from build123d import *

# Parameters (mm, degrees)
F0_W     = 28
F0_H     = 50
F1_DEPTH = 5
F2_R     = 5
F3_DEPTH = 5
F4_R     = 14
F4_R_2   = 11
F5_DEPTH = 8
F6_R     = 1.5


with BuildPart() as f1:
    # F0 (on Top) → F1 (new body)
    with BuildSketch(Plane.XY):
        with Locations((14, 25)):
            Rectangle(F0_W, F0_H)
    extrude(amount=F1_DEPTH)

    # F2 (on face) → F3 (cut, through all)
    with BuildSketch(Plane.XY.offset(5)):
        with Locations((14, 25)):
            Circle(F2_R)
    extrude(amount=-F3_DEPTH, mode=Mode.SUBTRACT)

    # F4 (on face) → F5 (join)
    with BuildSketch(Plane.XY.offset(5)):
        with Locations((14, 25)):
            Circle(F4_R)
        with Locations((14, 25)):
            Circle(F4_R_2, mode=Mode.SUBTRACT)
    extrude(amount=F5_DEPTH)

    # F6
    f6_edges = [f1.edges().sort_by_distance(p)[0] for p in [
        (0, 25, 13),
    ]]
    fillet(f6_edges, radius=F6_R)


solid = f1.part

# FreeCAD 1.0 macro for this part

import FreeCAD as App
import Part
import Sketcher

V = App.Vector
Q = App.Units.Quantity


def edges_at(feature, points):
    """Names of the edges that pass closest to the given points."""
    edges = feature.Shape.Edges
    near = lambda p: min(range(len(edges)), key=lambda i: edges[i].distToShape(Part.Vertex(*p))[0])
    return sorted({f"Edge{near(p) + 1}" for p in points})


def add_polygon(sketch, points):
    """Adds a closed chain of lines whose ends are joined by coincident constraints."""
    first, n = sketch.GeometryCount, len(points)
    for a, b in zip(points, points[1:] + points[:1]):
        sketch.addGeometry(Part.LineSegment(App.Vector(*a, 0), App.Vector(*b, 0)), False)
    for i in range(n):
        sketch.addConstraint(Sketcher.Constraint("Coincident", first + i, 2, first + (i + 1) % n, 1))

doc = App.newDocument("Part")
body = doc.addObject("PartDesign::Body", "Body")

# Sketch on XY plane
sketch1 = body.newObject("Sketcher::SketchObject", "Sketch")
sketch1.AttachmentSupport = (doc.getObject("XY_Plane"), [""])
sketch1.MapMode = "FlatFace"
add_polygon(sketch1, [(0, 50), (0, 0), (28, 0), (28, 50)])  # lines 0-3
sketch1.addConstraint(Sketcher.Constraint("Vertical", 0))
sketch1.addConstraint(Sketcher.Constraint("Horizontal", 1))
sketch1.addConstraint(Sketcher.Constraint("Vertical", 2))
sketch1.addConstraint(Sketcher.Constraint("Horizontal", 3))
sketch1.addConstraint(Sketcher.Constraint("Coincident", 0, 2, -1, 1))
sketch1.addConstraint(Sketcher.Constraint("DistanceX", 1, 1, 1, 2, Q("28 mm")))
sketch1.addConstraint(Sketcher.Constraint("DistanceY", 0, 2, 0, 1, Q("50 mm")))
pad1 = body.newObject("PartDesign::Pad", "Pad")
pad1.Profile = sketch1
pad1.Length = 5

# Sketch on XY plane
sketch2 = body.newObject("Sketcher::SketchObject", "Sketch001")
sketch2.AttachmentSupport = (doc.getObject("XY_Plane"), [""])
sketch2.MapMode = "FlatFace"
sketch2.AttachmentOffset = App.Placement(V(0, 0, 5), App.Rotation())
sketch2.addGeometry(Part.Circle(V(14, 25, 0), V(0, 0, 1), 5), False)
sketch2.addConstraint(Sketcher.Constraint("Diameter", 0, Q("10 mm")))
sketch2.addConstraint(Sketcher.Constraint("DistanceX", -1, 1, 0, 3, Q("14 mm")))
sketch2.addConstraint(Sketcher.Constraint("DistanceY", -1, 1, 0, 3, Q("25 mm")))
pocket1 = body.newObject("PartDesign::Pocket", "Pocket")
pocket1.Profile = sketch2
pocket1.Type = "ThroughAll"

# Sketch on XY plane
sketch3 = body.newObject("Sketcher::SketchObject", "Sketch002")
sketch3.AttachmentSupport = (doc.getObject("XY_Plane"), [""])
sketch3.MapMode = "FlatFace"
sketch3.AttachmentOffset = App.Placement(V(0, 0, 5), App.Rotation())
sketch3.addGeometry(Part.Circle(V(14, 25, 0), V(0, 0, 1), 14), False)
sketch3.addGeometry(Part.Circle(V(14, 25, 0), V(0, 0, 1), 11), False)
sketch3.addConstraint(Sketcher.Constraint("Coincident", 1, 3, 0, 3))
sketch3.addConstraint(Sketcher.Constraint("Diameter", 0, Q("28 mm")))
sketch3.addConstraint(Sketcher.Constraint("Diameter", 1, Q("22 mm")))
sketch3.addConstraint(Sketcher.Constraint("DistanceX", -1, 1, 0, 3, Q("14 mm")))
sketch3.addConstraint(Sketcher.Constraint("DistanceY", -1, 1, 0, 3, Q("25 mm")))
pad2 = body.newObject("PartDesign::Pad", "Pad001")
pad2.Profile = sketch3
pad2.Length = 8
doc.recompute()

fillet = body.newObject("PartDesign::Fillet", "Fillet")
fillet.Base = (pad2, edges_at(pad2, [(0, 25, 13)]))
fillet.Radius = 1.5

doc.recompute()
